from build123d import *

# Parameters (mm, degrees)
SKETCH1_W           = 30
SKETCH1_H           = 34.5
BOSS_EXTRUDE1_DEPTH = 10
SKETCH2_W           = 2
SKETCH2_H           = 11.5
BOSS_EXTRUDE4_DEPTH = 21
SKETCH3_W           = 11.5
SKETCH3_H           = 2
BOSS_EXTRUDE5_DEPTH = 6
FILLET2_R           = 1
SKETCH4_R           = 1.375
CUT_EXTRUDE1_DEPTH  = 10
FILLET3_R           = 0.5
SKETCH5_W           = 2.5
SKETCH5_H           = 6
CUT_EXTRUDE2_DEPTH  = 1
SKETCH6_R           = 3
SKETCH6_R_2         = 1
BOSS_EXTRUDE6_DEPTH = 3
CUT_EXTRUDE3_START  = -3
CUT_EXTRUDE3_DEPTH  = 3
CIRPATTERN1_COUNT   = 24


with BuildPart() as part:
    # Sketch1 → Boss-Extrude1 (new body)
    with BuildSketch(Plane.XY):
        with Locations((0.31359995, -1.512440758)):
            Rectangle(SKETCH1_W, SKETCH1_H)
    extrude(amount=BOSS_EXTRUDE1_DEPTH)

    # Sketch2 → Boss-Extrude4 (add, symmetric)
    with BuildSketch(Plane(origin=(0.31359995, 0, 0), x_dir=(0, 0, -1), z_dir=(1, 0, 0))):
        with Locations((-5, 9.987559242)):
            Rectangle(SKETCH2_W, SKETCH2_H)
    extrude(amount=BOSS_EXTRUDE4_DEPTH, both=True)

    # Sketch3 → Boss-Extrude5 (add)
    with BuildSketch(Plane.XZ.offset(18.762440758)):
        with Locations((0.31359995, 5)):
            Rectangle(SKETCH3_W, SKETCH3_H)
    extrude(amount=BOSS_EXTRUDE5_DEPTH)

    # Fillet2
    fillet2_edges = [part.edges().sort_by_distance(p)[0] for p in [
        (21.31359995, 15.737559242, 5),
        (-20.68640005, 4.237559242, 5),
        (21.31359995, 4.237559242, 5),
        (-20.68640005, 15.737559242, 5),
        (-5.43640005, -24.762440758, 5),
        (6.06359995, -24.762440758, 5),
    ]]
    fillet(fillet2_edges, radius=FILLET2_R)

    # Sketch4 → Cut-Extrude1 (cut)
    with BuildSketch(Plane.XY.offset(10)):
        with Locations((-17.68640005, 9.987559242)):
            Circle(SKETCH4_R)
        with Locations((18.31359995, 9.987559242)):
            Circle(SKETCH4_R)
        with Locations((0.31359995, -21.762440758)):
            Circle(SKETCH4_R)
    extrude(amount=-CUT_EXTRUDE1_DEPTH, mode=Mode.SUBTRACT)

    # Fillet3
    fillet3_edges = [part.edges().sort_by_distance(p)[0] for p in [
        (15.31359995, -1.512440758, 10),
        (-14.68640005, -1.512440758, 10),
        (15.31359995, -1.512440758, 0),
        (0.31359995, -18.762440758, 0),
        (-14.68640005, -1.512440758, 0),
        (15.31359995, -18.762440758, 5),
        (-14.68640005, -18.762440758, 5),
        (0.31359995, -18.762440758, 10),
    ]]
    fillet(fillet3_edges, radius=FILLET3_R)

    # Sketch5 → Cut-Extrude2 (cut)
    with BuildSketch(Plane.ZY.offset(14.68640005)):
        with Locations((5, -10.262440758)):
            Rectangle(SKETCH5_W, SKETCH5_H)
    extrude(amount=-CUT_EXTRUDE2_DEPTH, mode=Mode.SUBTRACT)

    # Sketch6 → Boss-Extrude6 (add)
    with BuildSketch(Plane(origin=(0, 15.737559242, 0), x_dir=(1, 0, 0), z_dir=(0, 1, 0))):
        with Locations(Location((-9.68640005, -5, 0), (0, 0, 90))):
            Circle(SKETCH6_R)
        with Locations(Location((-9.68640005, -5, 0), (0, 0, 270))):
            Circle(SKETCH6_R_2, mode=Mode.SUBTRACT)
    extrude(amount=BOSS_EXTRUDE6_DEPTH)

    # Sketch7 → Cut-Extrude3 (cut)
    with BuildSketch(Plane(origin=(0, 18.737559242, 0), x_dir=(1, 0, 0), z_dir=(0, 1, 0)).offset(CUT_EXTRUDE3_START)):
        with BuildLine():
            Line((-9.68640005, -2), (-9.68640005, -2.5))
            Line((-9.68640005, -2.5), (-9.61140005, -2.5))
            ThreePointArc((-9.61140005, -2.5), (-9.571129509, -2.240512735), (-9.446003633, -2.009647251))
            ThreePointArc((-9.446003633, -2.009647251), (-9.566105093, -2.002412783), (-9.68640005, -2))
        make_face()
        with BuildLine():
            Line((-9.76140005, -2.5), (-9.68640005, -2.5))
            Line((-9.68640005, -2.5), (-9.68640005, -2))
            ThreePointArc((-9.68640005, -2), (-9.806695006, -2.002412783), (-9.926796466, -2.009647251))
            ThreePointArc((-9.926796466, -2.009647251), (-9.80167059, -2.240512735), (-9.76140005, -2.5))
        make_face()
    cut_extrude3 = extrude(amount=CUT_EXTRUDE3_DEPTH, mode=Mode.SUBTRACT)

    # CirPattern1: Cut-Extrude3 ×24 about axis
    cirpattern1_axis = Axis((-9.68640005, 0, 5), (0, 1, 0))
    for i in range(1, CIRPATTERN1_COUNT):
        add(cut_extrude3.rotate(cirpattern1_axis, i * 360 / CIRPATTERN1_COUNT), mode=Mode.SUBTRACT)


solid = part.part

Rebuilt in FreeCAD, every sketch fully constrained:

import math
import FreeCAD as App
import Part
import Sketcher
from FreeCAD import Vector
Q = App.Units.Quantity


def edges_at(feature, points):
    """Names of the edges that pass closest to the given points."""
    edges = feature.Shape.Edges
    near = lambda p: min(range(len(edges)), key=lambda i: edges[i].distToShape(Part.Vertex(*p))[0])
    return sorted({f"Edge{near(p) + 1}" for p in points})


def add_polygon(sketch, points):
    """Adds a closed chain of lines whose ends are joined by coincident constraints."""
    first, n = sketch.GeometryCount, len(points)
    for a, b in zip(points, points[1:] + points[:1]):
        sketch.addGeometry(Part.LineSegment(App.Vector(*a, 0), App.Vector(*b, 0)), False)
    for i in range(n):
        sketch.addConstraint(Sketcher.Constraint("Coincident", first + i, 2, first + (i + 1) % n, 1))

doc = App.newDocument("Part")
body = doc.addObject("PartDesign::Body", "Body")

# Sketch on XY plane
sketch1 = body.newObject("Sketcher::SketchObject", "Sketch")
sketch1.AttachmentSupport = (doc.getObject("XY_Plane"), [""])
sketch1.MapMode = "FlatFace"
add_polygon(sketch1, [(-15, 16), (-15, -19), (15, -19), (15, 16)])  # lines 0-3
sketch1.addConstraint(Sketcher.Constraint("Vertical", 0))
sketch1.addConstraint(Sketcher.Constraint("Horizontal", 1))
sketch1.addConstraint(Sketcher.Constraint("Vertical", 2))
sketch1.addConstraint(Sketcher.Constraint("Horizontal", 3))
sketch1.addConstraint(Sketcher.Constraint("DistanceX", 1, 1, 1, 2, Q("30 mm")))
sketch1.addConstraint(Sketcher.Constraint("DistanceY", 0, 2, 0, 1, Q("34.5 mm")))
sketch1.addConstraint(Sketcher.Constraint("DistanceX", 0, 2, -1, 1, Q("14.6864 mm")))
sketch1.addConstraint(Sketcher.Constraint("DistanceY", 0, 2, -1, 1, Q("18.762441 mm")))
pad1 = body.newObject("PartDesign::Pad", "Pad")
pad1.Profile = sketch1
pad1.Length = 10

# Sketch on YZ plane
sketch2 = body.newObject("Sketcher::SketchObject", "Sketch001")
sketch2.AttachmentSupport = (doc.getObject("YZ_Plane"), [""])
sketch2.MapMode = "FlatFace"
sketch2.AttachmentOffset = App.Placement(Vector(0, 0, 0.3136), App.Rotation())
add_polygon(sketch2, [(15.7, 6), (4.2, 6), (4.2, 4), (15.7, 4)])  # lines 0-3
sketch2.addConstraint(Sketcher.Constraint("Horizontal", 0))
sketch2.addConstraint(Sketcher.Constraint("Vertical", 1))
sketch2.addConstraint(Sketcher.Constraint("Horizontal", 2))
sketch2.addConstraint(Sketcher.Constraint("Vertical", 3))
sketch2.addConstraint(Sketcher.Constraint("DistanceY", 1, 2, 1, 1, Q("2 mm")))
sketch2.addConstraint(Sketcher.Constraint("DistanceX", 0, 2, 0, 1, Q("11.5 mm")))
sketch2.addConstraint(Sketcher.Constraint("DistanceY", -1, 1, 0, 2, Q("6 mm")))
sketch2.addConstraint(Sketcher.Constraint("DistanceX", -1, 1, 0, 2, Q("4.237559 mm")))
pad2 = body.newObject("PartDesign::Pad", "Pad001")
pad2.Profile = sketch2
pad2.Length = 42
pad2.Midplane = True

# Sketch on XZ plane
sketch3 = body.newObject("Sketcher::SketchObject", "Sketch002")
sketch3.AttachmentSupport = (doc.getObject("XZ_Plane"), [""])
sketch3.MapMode = "FlatFace"
sketch3.AttachmentOffset = App.Placement(Vector(0, 0, 18.762441), App.Rotation())
add_polygon(sketch3, [(-5.4, 6), (-5.4, 4), (6.1, 4), (6.1, 6)])  # lines 0-3
sketch3.addConstraint(Sketcher.Constraint("Vertical", 0))
sketch3.addConstraint(Sketcher.Constraint("Horizontal", 1))
sketch3.addConstraint(Sketcher.Constraint("Vertical", 2))
sketch3.addConstraint(Sketcher.Constraint("Horizontal", 3))
sketch3.addConstraint(Sketcher.Constraint("DistanceY", 0, 2, 0, 1, Q("2 mm")))
sketch3.addConstraint(Sketcher.Constraint("DistanceX", 1, 1, 1, 2, Q("11.5 mm")))
sketch3.addConstraint(Sketcher.Constraint("DistanceY", -1, 1, 0, 2, Q("4 mm")))
sketch3.addConstraint(Sketcher.Constraint("DistanceX", 0, 2, -1, 1, Q("5.4364 mm")))
pad3 = body.newObject("PartDesign::Pad", "Pad002")
pad3.Profile = sketch3
pad3.Length = 6
doc.recompute()

fillet = body.newObject("PartDesign::Fillet", "Fillet")
fillet.Base = (pad3, edges_at(pad3, [
    (21.314, 15.738, 5),
    (-20.686, 4.238, 5),
    (21.314, 4.238, 5),
    (-20.686, 15.738, 5),
    (-5.436, -24.762, 5),
    (6.064, -24.762, 5),
]))
fillet.Radius = 1

# Sketch on XY plane
sketch4 = body.newObject("Sketcher::SketchObject", "Sketch003")
sketch4.AttachmentSupport = (doc.getObject("XY_Plane"), [""])
sketch4.MapMode = "FlatFace"
sketch4.AttachmentOffset = App.Placement(Vector(0, 0, 10), App.Rotation())
sketch4.addGeometry(Part.Circle(Vector(-17.7, 10, 0), Vector(0, 0, 1), 1.4), False)
sketch4.addGeometry(Part.Circle(Vector(18.3, 10, 0), Vector(0, 0, 1), 1.4), False)
sketch4.addGeometry(Part.Circle(Vector(0.3, -21.8, 0), Vector(0, 0, 1), 1.4), False)
sketch4.addConstraint(Sketcher.Constraint("Equal", 0, 1))
sketch4.addConstraint(Sketcher.Constraint("Equal", 1, 2))
sketch4.addConstraint(Sketcher.Constraint("Horizontal", 0, 3, 1, 3))
sketch4.addConstraint(Sketcher.Constraint("Diameter", 0, Q("2.75 mm")))
sketch4.addConstraint(Sketcher.Constraint("DistanceX", 0, 3, 1, 3, Q("36 mm")))
sketch4.addConstraint(Sketcher.Constraint("DistanceX", 0, 3, 2, 3, Q("18 mm")))
sketch4.addConstraint(Sketcher.Constraint("DistanceY", 2, 3, 0, 3, Q("31.75 mm")))
sketch4.addConstraint(Sketcher.Constraint("DistanceX", 0, 3, -1, 1, Q("17.6864 mm")))
sketch4.addConstraint(Sketcher.Constraint("DistanceY", -1, 1, 0, 3, Q("9.987559 mm")))
pocket1 = body.newObject("PartDesign::Pocket", "Pocket")
pocket1.Profile = sketch4
pocket1.Length = 10
doc.recompute()

fillet2 = body.newObject("PartDesign::Fillet", "Fillet001")
fillet2.Base = (pocket1, edges_at(pocket1, [
    (15.314, -1.512, 10),
    (-14.686, -1.512, 10),
    (15.314, -1.512, 0),
    (0.314, -18.762, 0),
    (-14.686, -1.512, 0),
    (15.314, -18.762, 5),
    (-14.686, -18.762, 5),
    (0.314, -18.762, 10),
]))
fillet2.Radius = 0.5

# Sketch on YZ plane
sketch5 = body.newObject("Sketcher::SketchObject", "Sketch004")
sketch5.AttachmentSupport = (doc.getObject("YZ_Plane"), [""])
sketch5.MapMode = "FlatFace"
sketch5.AttachmentOffset = App.Placement(Vector(0, 0, -14.6864), App.Rotation())
add_polygon(sketch5, [(-7.3, 3.8), (-13.3, 3.8), (-13.3, 6.2), (-7.3, 6.2)])  # lines 0-3
sketch5.addConstraint(Sketcher.Constraint("Horizontal", 0))
sketch5.addConstraint(Sketcher.Constraint("Vertical", 1))
sketch5.addConstraint(Sketcher.Constraint("Horizontal", 2))
sketch5.addConstraint(Sketcher.Constraint("Vertical", 3))
sketch5.addConstraint(Sketcher.Constraint("DistanceX", 0, 2, 0, 1, Q("6 mm")))
sketch5.addConstraint(Sketcher.Constraint("DistanceY", 1, 1, 1, 2, Q("2.5 mm")))
sketch5.addConstraint(Sketcher.Constraint("DistanceY", -1, 1, 0, 2, Q("3.75 mm")))
sketch5.addConstraint(Sketcher.Constraint("DistanceX", 0, 2, -1, 1, Q("13.262441 mm")))
pocket2 = body.newObject("PartDesign::Pocket", "Pocket001")
pocket2.Profile = sketch5
pocket2.Length = 1
pocket2.Reversed = True

# Sketch on XZ plane
sketch6 = body.newObject("Sketcher::SketchObject", "Sketch005")
sketch6.AttachmentSupport = (doc.getObject("XZ_Plane"), [""])
sketch6.MapMode = "FlatFace"
sketch6.AttachmentOffset = App.Placement(Vector(0, 0, -15.737559), App.Rotation())
sketch6.addGeometry(Part.Circle(Vector(-9.7, 5, 0), Vector(0, 0, 1), 3), False)
sketch6.addGeometry(Part.Circle(Vector(-9.7, 5, 0), Vector(0, 0, 1), 1), False)
sketch6.addConstraint(Sketcher.Constraint("Coincident", 1, 3, 0, 3))
sketch6.addConstraint(Sketcher.Constraint("Diameter", 0, Q("6 mm")))
sketch6.addConstraint(Sketcher.Constraint("Diameter", 1, Q("2 mm")))
sketch6.addConstraint(Sketcher.Constraint("DistanceY", -1, 1, 0, 3, Q("5 mm")))
sketch6.addConstraint(Sketcher.Constraint("DistanceX", 0, 3, -1, 1, Q("9.6864 mm")))
pad4 = body.newObject("PartDesign::Pad", "Pad003")
pad4.Profile = sketch6
pad4.Length = 3
pad4.Reversed = True

# Sketch on XZ plane
sketch7 = body.newObject("Sketcher::SketchObject", "Sketch006")
sketch7.AttachmentSupport = (doc.getObject("XZ_Plane"), [""])
sketch7.MapMode = "FlatFace"
sketch7.AttachmentOffset = App.Placement(Vector(0, 0, -15.737559), App.Rotation())
sketch7.addGeometry(Part.ArcOfCircle(Part.Circle(Vector(-8.84, 2.49, 0), Vector(0, 0, 1), 0.77), math.radians(179), math.radians(218)), False)
sketch7.addGeometry(Part.ArcOfCircle(Part.Circle(Vector(-9.69, 5, 0), Vector(0, 0, 1), 3), math.radians(-90), math.radians(-85.4)), False)
sketch7.addGeometry(Part.ArcOfCircle(Part.Circle(Vector(-9.69, 5, 0), Vector(0, 0, 1), 3), math.radians(-94.6), math.radians(-90)), False)
sketch7.addGeometry(Part.ArcOfCircle(Part.Circle(Vector(-10.53, 2.49, 0), Vector(0, 0, 1), 0.77), math.radians(-38), math.radians(1)), False)
sketch7.addGeometry(Part.LineSegment(Vector(-9.76, 2.5, 0), Vector(-9.61, 2.5, 0)), False)
sketch7.addConstraint(Sketcher.Constraint("Coincident", 0, 2, 1, 2))
sketch7.addConstraint(Sketcher.Constraint("Tangent", 1, 1, 2, 2))
sketch7.addConstraint(Sketcher.Constraint("Coincident", 2, 1, 3, 1))
sketch7.addConstraint(Sketcher.Constraint("Coincident", 3, 2, 4, 1))
sketch7.addConstraint(Sketcher.Constraint("Coincident", 4, 2, 0, 1))
sketch7.addConstraint(Sketcher.Constraint("Horizontal", 4))
sketch7.addConstraint(Sketcher.Constraint("Equal", 1, 2))
sketch7.addConstraint(Sketcher.Constraint("Equal", 0, 3))
sketch7.addConstraint(Sketcher.Constraint("Horizontal", 0, 3, 3, 3))
sketch7.addConstraint(Sketcher.Constraint("Horizontal", 0, 2, 2, 1))
sketch7.addConstraint(Sketcher.Constraint("Vertical", 2, 3, 1, 1))
sketch7.addConstraint(Sketcher.Constraint("Radius", 1, Q("3 mm")))
sketch7.addConstraint(Sketcher.Constraint("Radius", 0, Q("0.77 mm")))
sketch7.addConstraint(Sketcher.Constraint("DistanceY", -1, 1, 1, 3, Q("5 mm")))
sketch7.addConstraint(Sketcher.Constraint("DistanceX", 4, 1, 4, 2, Q("0.15 mm")))
sketch7.addConstraint(Sketcher.Constraint("DistanceY", -1, 1, 3, 2, Q("2.5 mm")))
sketch7.addConstraint(Sketcher.Constraint("DistanceX", 1, 3, -1, 1, Q("9.6864 mm")))
sketch7.addConstraint(Sketcher.Constraint("DistanceY", -1, 1, 0, 3, Q("2.486612 mm")))
pocket3 = body.newObject("PartDesign::Pocket", "Pocket002")
pocket3.Profile = sketch7
pocket3.Length = 3
doc.recompute()

datumline = body.newObject("PartDesign::Line", "DatumLine")
datumline.Placement = App.Placement(Vector(-9.6864, 0, 5), App.Rotation(Vector(0, 0, 1), Vector(0, 1, 0)))
polarpattern = body.newObject("PartDesign::PolarPattern", "PolarPattern")
polarpattern.Originals = [pocket3]
polarpattern.Axis = (datumline, [""])
polarpattern.Angle = 360
polarpattern.Occurrences = 24
body.Tip = polarpattern

doc.recompute()
